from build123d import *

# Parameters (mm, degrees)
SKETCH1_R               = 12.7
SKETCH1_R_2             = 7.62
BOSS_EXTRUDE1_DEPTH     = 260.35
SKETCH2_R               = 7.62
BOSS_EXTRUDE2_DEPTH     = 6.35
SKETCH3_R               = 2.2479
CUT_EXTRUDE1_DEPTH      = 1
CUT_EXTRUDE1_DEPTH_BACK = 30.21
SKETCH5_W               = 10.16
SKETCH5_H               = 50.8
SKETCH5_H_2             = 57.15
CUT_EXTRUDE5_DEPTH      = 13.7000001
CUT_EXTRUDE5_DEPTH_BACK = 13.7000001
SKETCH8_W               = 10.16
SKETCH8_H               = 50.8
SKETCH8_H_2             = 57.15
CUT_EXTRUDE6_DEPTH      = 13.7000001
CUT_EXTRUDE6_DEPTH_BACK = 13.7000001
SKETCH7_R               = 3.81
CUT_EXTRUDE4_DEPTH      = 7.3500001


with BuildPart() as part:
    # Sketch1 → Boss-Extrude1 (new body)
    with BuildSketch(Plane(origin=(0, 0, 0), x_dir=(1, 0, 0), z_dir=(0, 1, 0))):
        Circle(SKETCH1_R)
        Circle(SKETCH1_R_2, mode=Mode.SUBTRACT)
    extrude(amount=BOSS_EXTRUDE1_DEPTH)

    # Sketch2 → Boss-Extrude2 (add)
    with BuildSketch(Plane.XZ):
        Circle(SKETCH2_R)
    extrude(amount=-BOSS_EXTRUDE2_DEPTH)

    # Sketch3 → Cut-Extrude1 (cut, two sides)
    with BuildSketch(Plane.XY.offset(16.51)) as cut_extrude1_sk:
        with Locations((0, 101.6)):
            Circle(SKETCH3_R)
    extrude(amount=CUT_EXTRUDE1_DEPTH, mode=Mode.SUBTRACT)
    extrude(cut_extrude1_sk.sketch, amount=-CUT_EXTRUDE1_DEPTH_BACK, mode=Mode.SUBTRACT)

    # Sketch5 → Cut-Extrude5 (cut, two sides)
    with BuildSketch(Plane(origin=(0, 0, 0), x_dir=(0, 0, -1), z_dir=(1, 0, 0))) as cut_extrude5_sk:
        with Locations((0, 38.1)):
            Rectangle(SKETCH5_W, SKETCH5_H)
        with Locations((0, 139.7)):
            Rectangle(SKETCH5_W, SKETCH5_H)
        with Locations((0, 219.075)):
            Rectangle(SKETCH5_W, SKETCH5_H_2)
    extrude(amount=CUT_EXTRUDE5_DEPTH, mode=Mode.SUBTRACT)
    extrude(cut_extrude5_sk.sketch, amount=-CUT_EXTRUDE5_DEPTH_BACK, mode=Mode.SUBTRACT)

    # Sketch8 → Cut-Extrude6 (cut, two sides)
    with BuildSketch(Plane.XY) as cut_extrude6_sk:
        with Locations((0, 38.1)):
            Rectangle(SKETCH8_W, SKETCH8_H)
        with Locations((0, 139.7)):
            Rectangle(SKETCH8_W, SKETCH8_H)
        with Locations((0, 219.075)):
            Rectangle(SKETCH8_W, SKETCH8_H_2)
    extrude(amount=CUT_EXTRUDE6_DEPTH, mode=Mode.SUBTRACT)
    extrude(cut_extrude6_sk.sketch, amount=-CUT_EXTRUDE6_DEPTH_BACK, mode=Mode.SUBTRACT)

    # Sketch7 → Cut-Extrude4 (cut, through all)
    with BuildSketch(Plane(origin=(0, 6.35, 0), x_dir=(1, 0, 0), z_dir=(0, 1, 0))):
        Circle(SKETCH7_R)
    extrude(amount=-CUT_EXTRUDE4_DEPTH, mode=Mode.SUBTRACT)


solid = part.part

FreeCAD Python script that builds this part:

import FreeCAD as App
import Part
import Sketcher
from FreeCAD import Vector
Q = App.Units.Quantity


def add_polygon(sketch, points):
    """Adds a closed chain of lines whose ends are joined by coincident constraints."""
    first, n = sketch.GeometryCount, len(points)
    for a, b in zip(points, points[1:] + points[:1]):
        sketch.addGeometry(Part.LineSegment(App.Vector(*a, 0), App.Vector(*b, 0)), False)
    for i in range(n):
        sketch.addConstraint(Sketcher.Constraint("Coincident", first + i, 2, first + (i + 1) % n, 1))

doc = App.newDocument("Part")
body = doc.addObject("PartDesign::Body", "Body")

sketch1 = body.newObject("Sketcher::SketchObject", "Sketch")
sketch1.AttachmentSupport = (doc.getObject("XZ_Plane"), [""])
sketch1.MapMode = "FlatFace"
sketch1.addGeometry(Part.Circle(Vector(0, 0, 0), Vector(0, 0, 1), 13), False)
sketch1.addGeometry(Part.Circle(Vector(0, 0, 0), Vector(0, 0, 1), 8), False)
sketch1.addConstraint(Sketcher.Constraint("Coincident", 0, 3, -1, 1))
sketch1.addConstraint(Sketcher.Constraint("Coincident", 1, 3, -1, 1))
sketch1.addConstraint(Sketcher.Constraint("Diameter", 0, Q("1 in")))
sketch1.addConstraint(Sketcher.Constraint("Diameter", 1, Q("0.6 in")))
pad1 = body.newObject("PartDesign::Pad", "Pad")
pad1.Profile = sketch1
pad1.Length = Q("10.25 in")
pad1.Reversed = True

sketch2 = body.newObject("Sketcher::SketchObject", "Sketch001")
sketch2.AttachmentSupport = (doc.getObject("XZ_Plane"), [""])
sketch2.MapMode = "FlatFace"
sketch2.addGeometry(Part.Circle(Vector(0, 0, 0), Vector(0, 0, 1), 8), False)
sketch2.addConstraint(Sketcher.Constraint("Coincident", 0, 3, -1, 1))
sketch2.addConstraint(Sketcher.Constraint("Diameter", 0, Q("0.6 in")))
pad2 = body.newObject("PartDesign::Pad", "Pad001")
pad2.Profile = sketch2
pad2.Length = Q("0.25 in")
pad2.Reversed = True

sketch3 = body.newObject("Sketcher::SketchObject", "Sketch002")
sketch3.AttachmentSupport = (doc.getObject("XY_Plane"), [""])
sketch3.MapMode = "FlatFace"
sketch3.AttachmentOffset = App.Placement(Vector(0, 0, 0.65 * 25.4), App.Rotation())
sketch3.addGeometry(Part.Circle(Vector(0, 101.6, 0), Vector(0, 0, 1), 2.2), False)
sketch3.addConstraint(Sketcher.Constraint("PointOnObject", 0, 3, -2))
sketch3.addConstraint(Sketcher.Constraint("Diameter", 0, Q("0.177 in")))
sketch3.addConstraint(Sketcher.Constraint("DistanceY", -1, 1, 0, 3, Q("4 in")))
pocket1 = body.newObject("PartDesign::Pocket", "Pocket")
pocket1.Profile = sketch3
pocket1.Type = "ThroughAll"
pocket1.Midplane = True

sketch4 = body.newObject("Sketcher::SketchObject", "Sketch003")
sketch4.AttachmentSupport = (doc.getObject("YZ_Plane"), [""])
sketch4.MapMode = "FlatFace"
add_polygon(sketch4, [(64, 5), (13, 5), (13, -5), (64, -5)])
add_polygon(sketch4, [(165, 5), (114, 5), (114, -5), (165, -5)])
add_polygon(sketch4, [(248, 5), (190, 5), (190, -5), (248, -5)])
sketch4.addConstraint(Sketcher.Constraint("Horizontal", 0))
sketch4.addConstraint(Sketcher.Constraint("Vertical", 1))
sketch4.addConstraint(Sketcher.Constraint("Horizontal", 2))
sketch4.addConstraint(Sketcher.Constraint("Vertical", 3))
sketch4.addConstraint(Sketcher.Constraint("Horizontal", 4))
sketch4.addConstraint(Sketcher.Constraint("Vertical", 5))
sketch4.addConstraint(Sketcher.Constraint("Horizontal", 6))
sketch4.addConstraint(Sketcher.Constraint("Vertical", 7))
sketch4.addConstraint(Sketcher.Constraint("Horizontal", 8))
sketch4.addConstraint(Sketcher.Constraint("Vertical", 9))
sketch4.addConstraint(Sketcher.Constraint("Horizontal", 10))
sketch4.addConstraint(Sketcher.Constraint("Vertical", 11))
sketch4.addConstraint(Sketcher.Constraint("Horizontal", 3, 2, 4, 2))
sketch4.addConstraint(Sketcher.Constraint("Horizontal", 2, 2, 5, 2))
sketch4.addConstraint(Sketcher.Constraint("Horizontal", 7, 2, 8, 2))
sketch4.addConstraint(Sketcher.Constraint("Horizontal", 6, 2, 9, 2))
sketch4.addConstraint(Sketcher.Constraint("Equal", 2, 4))
sketch4.addConstraint(Sketcher.Constraint("DistanceX", 0, 2, 0, 1, Q("2 in")))
sketch4.addConstraint(Sketcher.Constraint("DistanceY", 1, 2, 1, 1, Q("0.4 in")))
sketch4.addConstraint(Sketcher.Constraint("DistanceX", 3, 2, 4, 2, Q("2 in")))
sketch4.addConstraint(Sketcher.Constraint("DistanceX", 7, 2, 8, 2, Q("1 in")))
sketch4.addConstraint(Sketcher.Constraint("DistanceX", 8, 2, 8, 1, Q("2.25 in")))
sketch4.addConstraint(Sketcher.Constraint("DistanceX", -1, 1, 0, 2, Q("0.5 in")))
sketch4.addConstraint(Sketcher.Constraint("DistanceY", -1, 1, 0, 2, Q("0.2 in")))
pocket2 = body.newObject("PartDesign::Pocket", "Pocket001")
pocket2.Profile = sketch4
pocket2.Type = "ThroughAll"
pocket2.Midplane = True

sketch5 = body.newObject("Sketcher::SketchObject", "Sketch004")
sketch5.AttachmentSupport = (doc.getObject("XY_Plane"), [""])
sketch5.MapMode = "FlatFace"
add_polygon(sketch5, [(-5, 64), (-5, 13), (5, 13), (5, 64)])
add_polygon(sketch5, [(-5, 165), (-5, 114), (5, 114), (5, 165)])
add_polygon(sketch5, [(-5, 248), (-5, 190), (5, 190), (5, 248)])
sketch5.addConstraint(Sketcher.Constraint("Vertical", 0))
sketch5.addConstraint(Sketcher.Constraint("Horizontal", 1))
sketch5.addConstraint(Sketcher.Constraint("Vertical", 2))
sketch5.addConstraint(Sketcher.Constraint("Horizontal", 3))
sketch5.addConstraint(Sketcher.Constraint("Vertical", 4))
sketch5.addConstraint(Sketcher.Constraint("Horizontal", 5))
sketch5.addConstraint(Sketcher.Constraint("Vertical", 6))
sketch5.addConstraint(Sketcher.Constraint("Horizontal", 7))
sketch5.addConstraint(Sketcher.Constraint("Vertical", 8))
sketch5.addConstraint(Sketcher.Constraint("Horizontal", 9))
sketch5.addConstraint(Sketcher.Constraint("Vertical", 10))
sketch5.addConstraint(Sketcher.Constraint("Horizontal", 11))
sketch5.addConstraint(Sketcher.Constraint("Vertical", 3, 2, 4, 2))
sketch5.addConstraint(Sketcher.Constraint("Vertical", 2, 2, 5, 2))
sketch5.addConstraint(Sketcher.Constraint("Vertical", 7, 2, 8, 2))
sketch5.addConstraint(Sketcher.Constraint("Vertical", 6, 2, 9, 2))
sketch5.addConstraint(Sketcher.Constraint("Equal", 2, 4))
sketch5.addConstraint(Sketcher.Constraint("DistanceY", 0, 2, 0, 1, Q("2 in")))
sketch5.addConstraint(Sketcher.Constraint("DistanceX", 1, 1, 1, 2, Q("0.4 in")))
sketch5.addConstraint(Sketcher.Constraint("DistanceY", 3, 2, 4, 2, Q("2 in")))
sketch5.addConstraint(Sketcher.Constraint("DistanceY", 7, 2, 8, 2, Q("1 in")))
sketch5.addConstraint(Sketcher.Constraint("DistanceY", 8, 2, 8, 1, Q("2.25 in")))
sketch5.addConstraint(Sketcher.Constraint("DistanceX", 0, 2, -1, 1, Q("0.2 in")))
sketch5.addConstraint(Sketcher.Constraint("DistanceY", -1, 1, 0, 2, Q("0.5 in")))
pocket3 = body.newObject("PartDesign::Pocket", "Pocket002")
pocket3.Profile = sketch5
pocket3.Type = "ThroughAll"
pocket3.Midplane = True

sketch6 = body.newObject("Sketcher::SketchObject", "Sketch005")
sketch6.AttachmentSupport = (doc.getObject("XZ_Plane"), [""])
sketch6.MapMode = "FlatFace"
sketch6.AttachmentOffset = App.Placement(Vector(0, 0, -0.25 * 25.4), App.Rotation())
sketch6.addGeometry(Part.Circle(Vector(0, 0, 0), Vector(0, 0, 1), 3.8), False)
sketch6.addConstraint(Sketcher.Constraint("Coincident", 0, 3, -1, 1))
sketch6.addConstraint(Sketcher.Constraint("Diameter", 0, Q("0.3 in")))
pocket4 = body.newObject("PartDesign::Pocket", "Pocket003")
pocket4.Profile = sketch6
pocket4.Type = "ThroughAll"
pocket4.Reversed = True

doc.recompute()
